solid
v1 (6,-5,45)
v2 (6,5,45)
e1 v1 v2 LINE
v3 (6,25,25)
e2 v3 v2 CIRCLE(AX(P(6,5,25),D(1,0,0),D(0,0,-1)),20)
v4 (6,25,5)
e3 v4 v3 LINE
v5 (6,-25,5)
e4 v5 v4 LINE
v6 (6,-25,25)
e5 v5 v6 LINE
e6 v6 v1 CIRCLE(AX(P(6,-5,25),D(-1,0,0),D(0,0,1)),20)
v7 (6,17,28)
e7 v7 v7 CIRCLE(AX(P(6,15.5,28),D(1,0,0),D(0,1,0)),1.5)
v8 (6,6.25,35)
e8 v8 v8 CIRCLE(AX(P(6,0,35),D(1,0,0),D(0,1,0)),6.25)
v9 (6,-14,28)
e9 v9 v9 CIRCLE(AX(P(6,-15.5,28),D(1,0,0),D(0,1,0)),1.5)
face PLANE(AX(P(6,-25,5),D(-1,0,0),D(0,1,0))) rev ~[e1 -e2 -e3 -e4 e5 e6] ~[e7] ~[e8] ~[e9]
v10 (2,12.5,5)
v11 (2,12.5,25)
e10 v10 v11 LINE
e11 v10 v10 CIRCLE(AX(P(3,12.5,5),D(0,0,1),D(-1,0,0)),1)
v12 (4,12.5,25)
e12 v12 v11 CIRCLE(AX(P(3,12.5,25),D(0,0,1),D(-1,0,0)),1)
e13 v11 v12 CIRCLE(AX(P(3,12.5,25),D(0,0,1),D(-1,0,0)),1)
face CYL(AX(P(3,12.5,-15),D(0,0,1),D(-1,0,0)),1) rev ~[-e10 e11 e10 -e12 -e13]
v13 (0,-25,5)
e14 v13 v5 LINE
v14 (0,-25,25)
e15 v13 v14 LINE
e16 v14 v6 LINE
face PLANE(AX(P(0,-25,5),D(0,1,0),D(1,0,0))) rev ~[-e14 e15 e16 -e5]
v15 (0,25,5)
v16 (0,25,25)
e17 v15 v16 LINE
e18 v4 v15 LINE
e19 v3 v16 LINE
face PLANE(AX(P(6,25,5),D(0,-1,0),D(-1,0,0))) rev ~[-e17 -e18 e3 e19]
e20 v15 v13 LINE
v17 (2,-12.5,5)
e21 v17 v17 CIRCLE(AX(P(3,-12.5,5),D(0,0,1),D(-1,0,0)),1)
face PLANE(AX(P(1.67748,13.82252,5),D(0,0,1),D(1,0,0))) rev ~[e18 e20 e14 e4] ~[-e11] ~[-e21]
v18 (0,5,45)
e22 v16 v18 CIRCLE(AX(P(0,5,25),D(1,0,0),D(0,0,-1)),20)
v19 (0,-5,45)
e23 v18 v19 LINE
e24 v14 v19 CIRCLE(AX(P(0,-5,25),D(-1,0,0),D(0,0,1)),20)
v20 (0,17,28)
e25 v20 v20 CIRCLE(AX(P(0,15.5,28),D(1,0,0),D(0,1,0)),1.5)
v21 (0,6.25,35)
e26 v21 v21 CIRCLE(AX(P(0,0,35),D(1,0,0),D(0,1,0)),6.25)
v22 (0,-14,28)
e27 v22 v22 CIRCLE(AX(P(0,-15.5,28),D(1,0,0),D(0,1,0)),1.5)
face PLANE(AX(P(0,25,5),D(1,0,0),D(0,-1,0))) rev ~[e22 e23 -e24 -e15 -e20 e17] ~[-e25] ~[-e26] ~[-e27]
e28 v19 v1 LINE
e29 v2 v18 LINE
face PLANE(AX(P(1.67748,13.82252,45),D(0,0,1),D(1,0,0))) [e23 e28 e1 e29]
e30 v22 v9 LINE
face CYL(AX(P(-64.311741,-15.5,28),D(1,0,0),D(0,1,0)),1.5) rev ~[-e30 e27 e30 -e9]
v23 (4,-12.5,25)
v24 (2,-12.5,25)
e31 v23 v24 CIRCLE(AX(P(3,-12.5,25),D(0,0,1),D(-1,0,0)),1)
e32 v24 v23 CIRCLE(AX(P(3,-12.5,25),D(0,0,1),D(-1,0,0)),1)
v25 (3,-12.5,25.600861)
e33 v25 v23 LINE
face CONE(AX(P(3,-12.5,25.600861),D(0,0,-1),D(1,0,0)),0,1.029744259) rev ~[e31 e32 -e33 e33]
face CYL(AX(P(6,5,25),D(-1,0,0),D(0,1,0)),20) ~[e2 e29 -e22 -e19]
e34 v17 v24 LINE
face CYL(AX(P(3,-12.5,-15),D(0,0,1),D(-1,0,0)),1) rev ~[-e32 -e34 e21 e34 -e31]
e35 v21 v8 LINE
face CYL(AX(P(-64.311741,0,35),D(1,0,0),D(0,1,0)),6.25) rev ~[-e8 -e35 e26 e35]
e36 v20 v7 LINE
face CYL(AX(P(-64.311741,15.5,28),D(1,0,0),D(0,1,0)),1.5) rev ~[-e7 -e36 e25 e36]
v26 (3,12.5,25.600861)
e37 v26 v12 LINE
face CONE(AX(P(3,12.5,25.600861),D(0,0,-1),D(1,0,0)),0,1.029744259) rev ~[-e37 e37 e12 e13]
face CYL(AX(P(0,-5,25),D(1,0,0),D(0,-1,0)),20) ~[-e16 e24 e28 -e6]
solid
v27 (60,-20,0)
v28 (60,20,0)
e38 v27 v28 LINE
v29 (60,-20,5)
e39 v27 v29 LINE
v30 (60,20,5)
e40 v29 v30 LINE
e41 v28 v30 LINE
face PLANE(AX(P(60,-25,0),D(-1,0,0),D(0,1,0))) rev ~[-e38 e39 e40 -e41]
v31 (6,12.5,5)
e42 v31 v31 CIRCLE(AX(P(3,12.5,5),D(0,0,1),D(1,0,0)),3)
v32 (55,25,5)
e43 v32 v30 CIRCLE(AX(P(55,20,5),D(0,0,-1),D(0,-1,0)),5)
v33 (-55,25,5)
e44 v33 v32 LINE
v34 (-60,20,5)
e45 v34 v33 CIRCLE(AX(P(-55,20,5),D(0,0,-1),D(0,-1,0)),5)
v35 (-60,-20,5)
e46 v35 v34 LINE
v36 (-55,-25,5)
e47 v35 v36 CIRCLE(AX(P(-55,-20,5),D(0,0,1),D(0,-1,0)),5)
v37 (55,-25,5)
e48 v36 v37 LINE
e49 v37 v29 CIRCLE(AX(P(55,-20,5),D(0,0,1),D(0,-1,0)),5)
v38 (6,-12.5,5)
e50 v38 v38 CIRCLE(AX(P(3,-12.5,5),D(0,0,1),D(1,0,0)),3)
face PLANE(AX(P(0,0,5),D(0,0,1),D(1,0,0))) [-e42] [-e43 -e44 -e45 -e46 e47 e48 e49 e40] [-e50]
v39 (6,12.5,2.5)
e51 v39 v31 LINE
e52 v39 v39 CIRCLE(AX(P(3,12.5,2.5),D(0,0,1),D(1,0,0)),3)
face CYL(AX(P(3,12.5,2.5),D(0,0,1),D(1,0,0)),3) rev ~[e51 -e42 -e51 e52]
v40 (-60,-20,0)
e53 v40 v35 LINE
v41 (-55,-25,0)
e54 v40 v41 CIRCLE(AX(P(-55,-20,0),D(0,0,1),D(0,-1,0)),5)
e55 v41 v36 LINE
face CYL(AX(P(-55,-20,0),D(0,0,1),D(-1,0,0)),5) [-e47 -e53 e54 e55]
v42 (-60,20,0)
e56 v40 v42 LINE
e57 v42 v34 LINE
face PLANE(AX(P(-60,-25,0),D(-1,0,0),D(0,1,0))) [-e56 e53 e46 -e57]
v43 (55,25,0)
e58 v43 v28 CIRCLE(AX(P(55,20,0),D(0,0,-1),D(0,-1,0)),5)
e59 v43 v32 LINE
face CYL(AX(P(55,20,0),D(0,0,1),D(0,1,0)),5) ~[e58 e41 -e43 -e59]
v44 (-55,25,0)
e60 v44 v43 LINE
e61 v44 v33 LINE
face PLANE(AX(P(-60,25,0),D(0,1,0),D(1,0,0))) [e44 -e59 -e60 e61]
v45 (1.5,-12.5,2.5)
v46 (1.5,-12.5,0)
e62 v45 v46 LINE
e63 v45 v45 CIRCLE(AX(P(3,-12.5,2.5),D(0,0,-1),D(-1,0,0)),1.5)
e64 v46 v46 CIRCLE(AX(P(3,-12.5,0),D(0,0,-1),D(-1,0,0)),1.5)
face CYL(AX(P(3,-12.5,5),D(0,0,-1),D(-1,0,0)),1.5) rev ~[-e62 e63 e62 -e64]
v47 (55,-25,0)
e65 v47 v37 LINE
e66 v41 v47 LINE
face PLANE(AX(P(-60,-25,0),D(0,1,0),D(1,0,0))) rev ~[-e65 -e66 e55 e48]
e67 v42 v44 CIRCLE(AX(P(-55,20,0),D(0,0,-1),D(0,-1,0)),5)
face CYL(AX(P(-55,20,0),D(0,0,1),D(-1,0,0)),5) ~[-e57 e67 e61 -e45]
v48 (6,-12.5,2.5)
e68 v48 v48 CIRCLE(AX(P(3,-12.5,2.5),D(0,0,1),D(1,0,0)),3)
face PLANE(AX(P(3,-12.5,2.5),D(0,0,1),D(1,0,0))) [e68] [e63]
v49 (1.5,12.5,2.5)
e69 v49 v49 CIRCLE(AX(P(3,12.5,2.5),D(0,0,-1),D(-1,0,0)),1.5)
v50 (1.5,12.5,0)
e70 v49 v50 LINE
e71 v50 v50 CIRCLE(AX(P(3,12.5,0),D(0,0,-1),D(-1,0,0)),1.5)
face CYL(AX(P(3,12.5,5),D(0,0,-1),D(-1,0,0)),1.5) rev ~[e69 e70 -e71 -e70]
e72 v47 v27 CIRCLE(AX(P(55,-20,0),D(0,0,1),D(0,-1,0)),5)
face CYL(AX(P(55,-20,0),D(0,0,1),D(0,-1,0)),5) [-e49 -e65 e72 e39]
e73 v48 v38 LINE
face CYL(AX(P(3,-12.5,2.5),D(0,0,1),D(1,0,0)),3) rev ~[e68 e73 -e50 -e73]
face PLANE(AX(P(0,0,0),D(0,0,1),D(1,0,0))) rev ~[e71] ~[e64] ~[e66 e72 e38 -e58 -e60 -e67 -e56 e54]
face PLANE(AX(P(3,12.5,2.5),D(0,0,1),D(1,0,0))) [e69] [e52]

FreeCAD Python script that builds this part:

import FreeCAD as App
import Part
import Sketcher
from FreeCAD import Vector


def edges_at(feature, points):
    """Names of the edges that pass closest to the given points."""
    edges = feature.Shape.Edges
    near = lambda p: min(range(len(edges)), key=lambda i: edges[i].distToShape(Part.Vertex(*p))[0])
    return sorted({f"Edge{near(p) + 1}" for p in points})

doc = App.newDocument("Part")
body = doc.addObject("PartDesign::Body", "Body")

sketch1 = body.newObject("Sketcher::SketchObject", "Sketch")
sketch1.AttachmentSupport = (doc.getObject("XY_Plane"), [""])
sketch1.MapMode = "FlatFace"
sketch1.addGeometry(Part.LineSegment(Vector(-60, 25, 0), Vector(-60, -25, 0)), False)
sketch1.addGeometry(Part.LineSegment(Vector(-60, -25, 0), Vector(60, -25, 0)), False)
sketch1.addGeometry(Part.LineSegment(Vector(60, -25, 0), Vector(60, 25, 0)), False)
sketch1.addGeometry(Part.LineSegment(Vector(60, 25, 0), Vector(-60, 25, 0)), False)
sketch1.addConstraint(Sketcher.Constraint("Coincident", 0, 2, 1, 1))
sketch1.addConstraint(Sketcher.Constraint("Coincident", 1, 2, 2, 1))
sketch1.addConstraint(Sketcher.Constraint("Coincident", 2, 2, 3, 1))
sketch1.addConstraint(Sketcher.Constraint("Coincident", 3, 2, 0, 1))
sketch1.addConstraint(Sketcher.Constraint("Vertical", 0))
sketch1.addConstraint(Sketcher.Constraint("Horizontal", 1))
sketch1.addConstraint(Sketcher.Constraint("Vertical", 2))
sketch1.addConstraint(Sketcher.Constraint("Horizontal", 3))
sketch1.addConstraint(Sketcher.Constraint("Symmetric", 0, 2, 2, 2, -1, 1))
sketch1.addConstraint(Sketcher.Constraint("DistanceX", 1, 1, 1, 2, 120.0))
sketch1.addConstraint(Sketcher.Constraint("DistanceY", 0, 2, 0, 1, 50.0))
pad1 = body.newObject("PartDesign::Pad", "Pad")
pad1.Profile = sketch1
pad1.Length = 5

sketch2 = body.newObject("Sketcher::SketchObject", "Sketch001")
sketch2.AttachmentSupport = (doc.getObject("XY_Plane"), [""])
sketch2.MapMode = "FlatFace"
sketch2.AttachmentOffset = App.Placement(Vector(0, 0, 5), App.Rotation())
sketch2.addGeometry(Part.Circle(Vector(3, 12.5, 0), Vector(0, 0, 1), 1.5), False)
sketch2.addGeometry(Part.Circle(Vector(3, -12.5, 0), Vector(0, 0, 1), 1.5), False)
sketch2.addConstraint(Sketcher.Constraint("Equal", 0, 1))
sketch2.addConstraint(Sketcher.Constraint("Symmetric", 0, 3, 1, 3, -1))
sketch2.addConstraint(Sketcher.Constraint("Diameter", 0, 3.0))
sketch2.addConstraint(Sketcher.Constraint("DistanceX", -1, 1, 0, 3, 3.0))
sketch2.addConstraint(Sketcher.Constraint("DistanceY", 1, 3, 0, 3, 25.0))
doc.recompute()
hole = body.newObject("PartDesign::Hole", "Hole")
hole.Profile = sketch2
hole.ThreadType = "None"
hole.Diameter = 3
hole.DepthType = "ThroughAll"
hole.HoleCutType = "Counterbore"
hole.HoleCutDiameter = 6
hole.HoleCutDepth = 2.5
doc.recompute()

fillet = body.newObject("PartDesign::Fillet", "Fillet")
fillet.Base = (hole, edges_at(hole, [
    (-60, -25, 2.5),
    (-60, 25, 2.5),
    (60, -25, 2.5),
    (60, 25, 2.5),
]))
fillet.Radius = 5
body2 = doc.addObject("PartDesign::Body", "Body001")

sketch3 = body2.newObject("Sketcher::SketchObject", "Sketch002")
sketch3.AttachmentSupport = (doc.getObject("XY_Plane001"), [""])
sketch3.MapMode = "FlatFace"
sketch3.AttachmentOffset = App.Placement(Vector(0, 0, 5), App.Rotation())
sketch3.addGeometry(Part.LineSegment(Vector(6, 25, 0), Vector(0, 25, 0)), False)
sketch3.addGeometry(Part.LineSegment(Vector(0, 25, 0), Vector(0, -25, 0)), False)
sketch3.addGeometry(Part.LineSegment(Vector(0, -25, 0), Vector(6, -25, 0)), False)
sketch3.addGeometry(Part.LineSegment(Vector(6, -25, 0), Vector(6, 25, 0)), False)
sketch3.addConstraint(Sketcher.Constraint("Coincident", 0, 2, 1, 1))
sketch3.addConstraint(Sketcher.Constraint("Coincident", 1, 2, 2, 1))
sketch3.addConstraint(Sketcher.Constraint("Coincident", 2, 2, 3, 1))
sketch3.addConstraint(Sketcher.Constraint("Coincident", 3, 2, 0, 1))
sketch3.addConstraint(Sketcher.Constraint("Horizontal", 0))
sketch3.addConstraint(Sketcher.Constraint("Vertical", 1))
sketch3.addConstraint(Sketcher.Constraint("Horizontal", 2))
sketch3.addConstraint(Sketcher.Constraint("Vertical", 3))
sketch3.addConstraint(Sketcher.Constraint("Symmetric", 0, 2, 1, 2, -1, 1))
sketch3.addConstraint(Sketcher.Constraint("DistanceX", 0, 2, 0, 1, 6.0))
sketch3.addConstraint(Sketcher.Constraint("DistanceY", 1, 2, 1, 1, 50.0))
pad2 = body2.newObject("PartDesign::Pad", "Pad001")
pad2.Profile = sketch3
pad2.Length = 40
doc.recompute()

fillet2 = body2.newObject("PartDesign::Fillet", "Fillet001")
fillet2.Base = (pad2, edges_at(pad2, [(3, -25, 45), (3, 25, 45)]))
fillet2.Radius = 20

sketch4 = body2.newObject("Sketcher::SketchObject", "Sketch003")
sketch4.AttachmentSupport = (doc.getObject("YZ_Plane001"), [""])
sketch4.MapMode = "FlatFace"
sketch4.addGeometry(Part.Circle(Vector(0, 35, 0), Vector(0, 0, 1), 6), False)
sketch4.addConstraint(Sketcher.Constraint("PointOnObject", 0, 3, -2))
sketch4.addConstraint(Sketcher.Constraint("Diameter", 0, 12.5))
sketch4.addConstraint(Sketcher.Constraint("DistanceY", -1, 1, 0, 3, 35.0))
doc.recompute()
hole2 = body2.newObject("PartDesign::Hole", "Hole001")
hole2.Profile = sketch4
hole2.ThreadType = "None"
hole2.Diameter = 12.5
hole2.DepthType = "ThroughAll"
hole2.Reversed = True

sketch5 = body2.newObject("Sketcher::SketchObject", "Sketch004")
sketch5.AttachmentSupport = (doc.getObject("YZ_Plane001"), [""])
sketch5.MapMode = "FlatFace"
sketch5.addGeometry(Part.Circle(Vector(15.5, 28, 0), Vector(0, 0, 1), 1.5), False)
sketch5.addGeometry(Part.Circle(Vector(-15.5, 28, 0), Vector(0, 0, 1), 1.5), False)
sketch5.addConstraint(Sketcher.Constraint("Equal", 0, 1))
sketch5.addConstraint(Sketcher.Constraint("Symmetric", 0, 3, 1, 3, -2))
sketch5.addConstraint(Sketcher.Constraint("Diameter", 0, 3.0))
sketch5.addConstraint(Sketcher.Constraint("DistanceY", -1, 1, 0, 3, 28.0))
sketch5.addConstraint(Sketcher.Constraint("DistanceX", 1, 3, 0, 3, 31.0))
doc.recompute()
hole3 = body2.newObject("PartDesign::Hole", "Hole002")
hole3.Profile = sketch5
hole3.ThreadType = "None"
hole3.Diameter = 3
hole3.DepthType = "ThroughAll"
hole3.Reversed = True

sketch6 = body2.newObject("Sketcher::SketchObject", "Sketch005")
sketch6.AttachmentSupport = (doc.getObject("XY_Plane001"), [""])
sketch6.MapMode = "FlatFace"
sketch6.AttachmentOffset = App.Placement(Vector(0, 0, 5), App.Rotation())
sketch6.addGeometry(Part.Circle(Vector(3, -12.5, 0), Vector(0, 0, 1), 1), False)
sketch6.addGeometry(Part.Circle(Vector(3, 12.5, 0), Vector(0, 0, 1), 1), False)
sketch6.addConstraint(Sketcher.Constraint("Equal", 0, 1))
sketch6.addConstraint(Sketcher.Constraint("Symmetric", 0, 3, 1, 3, -1))
sketch6.addConstraint(Sketcher.Constraint("Diameter", 0, 2.0))
sketch6.addConstraint(Sketcher.Constraint("DistanceX", -1, 1, 0, 3, 3.0))
sketch6.addConstraint(Sketcher.Constraint("DistanceY", 0, 3, 1, 3, 25.0))
doc.recompute()
hole4 = body2.newObject("PartDesign::Hole", "Hole003")
hole4.Profile = sketch6
hole4.ThreadType = "None"
hole4.Diameter = 2
hole4.DepthType = "Dimension"
hole4.Depth = 20
hole4.DrillPoint = "Angled"
hole4.DrillPointAngle = 118
hole4.Reversed = True

doc.recompute()
